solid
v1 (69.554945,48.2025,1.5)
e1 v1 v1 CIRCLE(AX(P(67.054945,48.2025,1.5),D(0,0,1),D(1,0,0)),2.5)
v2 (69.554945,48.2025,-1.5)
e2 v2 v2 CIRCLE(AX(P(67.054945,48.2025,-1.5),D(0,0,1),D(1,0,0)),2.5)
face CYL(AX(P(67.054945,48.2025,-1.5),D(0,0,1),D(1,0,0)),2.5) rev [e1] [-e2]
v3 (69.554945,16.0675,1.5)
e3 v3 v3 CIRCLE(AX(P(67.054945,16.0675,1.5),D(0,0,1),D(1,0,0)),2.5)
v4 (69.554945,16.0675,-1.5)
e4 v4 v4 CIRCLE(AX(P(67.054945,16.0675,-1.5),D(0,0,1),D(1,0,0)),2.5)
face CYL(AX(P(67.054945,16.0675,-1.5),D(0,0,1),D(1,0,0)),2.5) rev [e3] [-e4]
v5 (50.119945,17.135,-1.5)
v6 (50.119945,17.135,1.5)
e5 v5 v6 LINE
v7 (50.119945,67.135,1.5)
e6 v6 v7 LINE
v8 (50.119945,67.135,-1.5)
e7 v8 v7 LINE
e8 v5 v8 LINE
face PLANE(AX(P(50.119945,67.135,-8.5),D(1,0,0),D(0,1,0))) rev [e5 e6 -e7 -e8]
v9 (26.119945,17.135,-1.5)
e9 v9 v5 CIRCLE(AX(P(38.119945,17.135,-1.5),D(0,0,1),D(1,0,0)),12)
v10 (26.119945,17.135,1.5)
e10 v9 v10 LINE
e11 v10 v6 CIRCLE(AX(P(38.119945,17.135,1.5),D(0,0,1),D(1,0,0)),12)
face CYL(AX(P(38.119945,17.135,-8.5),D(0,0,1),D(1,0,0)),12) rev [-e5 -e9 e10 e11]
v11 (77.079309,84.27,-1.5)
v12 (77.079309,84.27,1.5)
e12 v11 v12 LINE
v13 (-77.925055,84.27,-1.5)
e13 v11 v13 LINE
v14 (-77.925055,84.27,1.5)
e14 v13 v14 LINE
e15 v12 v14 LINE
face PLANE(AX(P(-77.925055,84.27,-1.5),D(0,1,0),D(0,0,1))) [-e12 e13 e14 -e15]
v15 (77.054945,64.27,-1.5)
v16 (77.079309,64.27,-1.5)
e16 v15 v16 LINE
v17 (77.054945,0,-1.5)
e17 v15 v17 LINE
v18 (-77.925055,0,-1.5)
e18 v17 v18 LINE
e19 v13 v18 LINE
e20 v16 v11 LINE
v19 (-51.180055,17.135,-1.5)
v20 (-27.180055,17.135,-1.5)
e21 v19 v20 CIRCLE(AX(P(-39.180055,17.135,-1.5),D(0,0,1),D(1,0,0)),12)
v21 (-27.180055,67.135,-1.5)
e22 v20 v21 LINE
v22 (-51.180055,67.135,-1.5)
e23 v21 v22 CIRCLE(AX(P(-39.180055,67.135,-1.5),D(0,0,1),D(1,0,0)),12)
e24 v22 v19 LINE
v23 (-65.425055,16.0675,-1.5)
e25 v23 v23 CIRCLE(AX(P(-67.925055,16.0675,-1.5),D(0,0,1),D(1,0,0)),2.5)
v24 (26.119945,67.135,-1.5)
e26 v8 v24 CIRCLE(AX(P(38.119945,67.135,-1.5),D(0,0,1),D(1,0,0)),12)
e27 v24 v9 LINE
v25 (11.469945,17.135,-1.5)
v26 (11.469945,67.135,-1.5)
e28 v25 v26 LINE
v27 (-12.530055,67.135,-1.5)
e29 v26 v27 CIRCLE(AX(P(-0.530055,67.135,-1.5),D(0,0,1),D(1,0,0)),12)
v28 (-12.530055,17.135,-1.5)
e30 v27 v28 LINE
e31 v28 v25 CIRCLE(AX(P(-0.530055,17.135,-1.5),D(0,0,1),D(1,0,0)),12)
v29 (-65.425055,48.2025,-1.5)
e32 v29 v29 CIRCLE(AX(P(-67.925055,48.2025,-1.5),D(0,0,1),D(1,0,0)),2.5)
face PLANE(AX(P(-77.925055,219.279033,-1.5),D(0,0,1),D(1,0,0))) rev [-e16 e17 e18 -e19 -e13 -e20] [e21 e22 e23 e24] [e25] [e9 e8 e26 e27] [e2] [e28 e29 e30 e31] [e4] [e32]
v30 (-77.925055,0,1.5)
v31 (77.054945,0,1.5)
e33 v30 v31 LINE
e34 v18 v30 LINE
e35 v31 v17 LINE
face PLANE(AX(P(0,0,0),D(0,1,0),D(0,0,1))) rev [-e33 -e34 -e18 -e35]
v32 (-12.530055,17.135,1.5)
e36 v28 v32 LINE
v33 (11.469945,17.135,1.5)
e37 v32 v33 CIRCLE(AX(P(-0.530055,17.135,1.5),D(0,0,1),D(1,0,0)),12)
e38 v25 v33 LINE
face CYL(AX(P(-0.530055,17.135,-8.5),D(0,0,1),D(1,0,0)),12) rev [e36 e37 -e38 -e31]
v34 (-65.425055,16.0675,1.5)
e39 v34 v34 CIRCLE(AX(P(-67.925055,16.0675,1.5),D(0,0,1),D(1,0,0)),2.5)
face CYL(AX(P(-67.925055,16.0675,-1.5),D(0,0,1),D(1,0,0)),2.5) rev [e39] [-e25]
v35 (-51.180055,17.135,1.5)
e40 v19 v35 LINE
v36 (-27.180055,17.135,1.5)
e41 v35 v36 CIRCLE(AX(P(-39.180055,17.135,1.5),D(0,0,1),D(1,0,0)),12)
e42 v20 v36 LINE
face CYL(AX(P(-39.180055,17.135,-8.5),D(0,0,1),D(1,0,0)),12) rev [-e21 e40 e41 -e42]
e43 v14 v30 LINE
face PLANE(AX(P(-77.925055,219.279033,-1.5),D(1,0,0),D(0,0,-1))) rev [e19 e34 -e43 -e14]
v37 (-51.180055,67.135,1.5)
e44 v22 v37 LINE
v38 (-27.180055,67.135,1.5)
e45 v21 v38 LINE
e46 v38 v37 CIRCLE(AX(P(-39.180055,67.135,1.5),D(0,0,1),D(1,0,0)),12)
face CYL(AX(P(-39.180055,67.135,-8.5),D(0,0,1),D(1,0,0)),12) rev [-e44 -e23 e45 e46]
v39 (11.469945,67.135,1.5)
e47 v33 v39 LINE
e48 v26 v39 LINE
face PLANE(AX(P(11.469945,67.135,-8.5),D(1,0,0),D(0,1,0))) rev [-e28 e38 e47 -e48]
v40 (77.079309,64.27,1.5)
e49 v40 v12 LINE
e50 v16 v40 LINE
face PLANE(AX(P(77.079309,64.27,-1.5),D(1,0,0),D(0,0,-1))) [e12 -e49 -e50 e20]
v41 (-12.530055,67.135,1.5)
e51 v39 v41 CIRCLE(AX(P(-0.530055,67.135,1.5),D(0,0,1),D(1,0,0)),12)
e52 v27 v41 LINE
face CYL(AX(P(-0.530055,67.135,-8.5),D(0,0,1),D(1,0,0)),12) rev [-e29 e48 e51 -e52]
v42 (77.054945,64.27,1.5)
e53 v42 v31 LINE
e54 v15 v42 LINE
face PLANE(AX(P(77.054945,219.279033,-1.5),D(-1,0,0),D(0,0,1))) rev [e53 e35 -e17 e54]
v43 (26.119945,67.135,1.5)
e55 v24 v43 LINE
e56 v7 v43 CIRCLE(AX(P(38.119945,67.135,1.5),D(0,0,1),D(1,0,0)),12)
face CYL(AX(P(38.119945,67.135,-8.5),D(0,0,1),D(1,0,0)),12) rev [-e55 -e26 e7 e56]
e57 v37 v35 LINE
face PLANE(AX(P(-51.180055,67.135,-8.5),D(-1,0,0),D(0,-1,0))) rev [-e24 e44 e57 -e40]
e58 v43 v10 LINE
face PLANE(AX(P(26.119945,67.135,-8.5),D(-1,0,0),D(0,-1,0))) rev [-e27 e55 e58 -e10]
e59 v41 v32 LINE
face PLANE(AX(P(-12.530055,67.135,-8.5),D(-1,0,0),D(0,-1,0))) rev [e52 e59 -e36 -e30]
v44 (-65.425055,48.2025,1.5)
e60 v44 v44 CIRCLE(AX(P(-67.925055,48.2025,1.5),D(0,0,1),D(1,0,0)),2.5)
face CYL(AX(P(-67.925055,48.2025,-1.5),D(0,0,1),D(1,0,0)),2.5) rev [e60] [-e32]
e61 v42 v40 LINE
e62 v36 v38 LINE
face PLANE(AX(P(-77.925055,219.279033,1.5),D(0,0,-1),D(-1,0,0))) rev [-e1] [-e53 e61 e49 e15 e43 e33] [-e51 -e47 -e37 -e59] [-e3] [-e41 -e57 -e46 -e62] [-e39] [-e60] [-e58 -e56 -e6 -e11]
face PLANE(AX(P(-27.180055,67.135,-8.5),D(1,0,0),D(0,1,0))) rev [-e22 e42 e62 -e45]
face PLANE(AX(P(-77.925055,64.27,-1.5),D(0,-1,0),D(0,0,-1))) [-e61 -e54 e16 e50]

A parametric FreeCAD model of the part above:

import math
import FreeCAD as App
import Part
import Sketcher
Q = App.Units.Quantity

doc = App.newDocument("Part")
params = doc.addObject("Spreadsheet::Sheet", "Params")
for row, (alias, value) in enumerate([
    ("sketch1_height", "3 mm"),
    ("sketch1_width", "154.98 mm"),
    ("pad1_length", "64.27 mm"),
    ("sketch2_diameter", "5 mm"),
    ("sketch3_radius", "2.5 mm"),
    ("sketch3_height", "30 mm"),
    ("sketch4_height", "20 mm"),
    ("pad2_length", "3 mm"),
    ("sketch5_radius", "12 mm"),
    ("sketch5_height", "50 mm"),
    ("pocket3_length", "10 mm"),
], start=1):
    params.set(f"A{row}", alias)
    params.set(f"B{row}", "=" + value)
    params.setAlias(f"B{row}", alias)

body = doc.addObject("PartDesign::Body", "Body")

# Sketch on XZ plane
sketch1 = body.newObject("Sketcher::SketchObject", "Sketch")
sketch1.AttachmentSupport = (doc.getObject("XZ_Plane"), [""])
sketch1.MapMode = "FlatFace"
sketch1.addGeometry([
    Part.LineSegment(App.Vector(-77.925055, -1.5, 0), App.Vector(-77.925055, 1.5, 0)),
    Part.LineSegment(App.Vector(-77.925055, 1.5, 0), App.Vector(77.054945, 1.5, 0)),
    Part.LineSegment(App.Vector(77.054945, 1.5, 0), App.Vector(77.054945, -1.5, 0)),
    Part.LineSegment(App.Vector(77.054945, -1.5, 0), App.Vector(-77.925055, -1.5, 0)),
], False)
sketch1.addConstraint([
    Sketcher.Constraint("Coincident", 0, 2, 1, 1),
    Sketcher.Constraint("Coincident", 1, 2, 2, 1),
    Sketcher.Constraint("Coincident", 2, 2, 3, 1),
    Sketcher.Constraint("Coincident", 3, 2, 0, 1),
    Sketcher.Constraint("Vertical", 0),
    Sketcher.Constraint("Horizontal", 1),
    Sketcher.Constraint("Vertical", 2),
    Sketcher.Constraint("Horizontal", 3),
    Sketcher.Constraint("DistanceY", 0, 1, 0, 2, Q("3 mm")),
    Sketcher.Constraint("DistanceX", 1, 1, 1, 2, Q("154.98 mm")),
    Sketcher.Constraint("DistanceY", -1, 1, 0, 2, Q("1.5 mm")),
    Sketcher.Constraint("DistanceX", 0, 2, -1, 1, Q("77.925055 mm")),
])
sketch1.setExpression("Constraints[8]", "Params.sketch1_height")
sketch1.setExpression("Constraints[9]", "Params.sketch1_width")
pad1 = body.newObject("PartDesign::Pad", "Pad")
pad1.Profile = sketch1
pad1.setExpression("Length", "Params.pad1_length")
pad1.Reversed = True

# Sketch on XY plane
sketch2 = body.newObject("Sketcher::SketchObject", "Sketch001")
sketch2.AttachmentSupport = (doc.getObject("XY_Plane"), [""])
sketch2.MapMode = "FlatFace"
sketch2.AttachmentOffset = App.Placement(App.Vector(0, 0, 1.5), App.Rotation())
sketch2.addGeometry([
    Part.Circle(App.Vector(-67.925055, 16.0675, 0), App.Vector(0, 0, 1), 2.5),
    Part.Circle(App.Vector(-67.925055, 48.2025, 0), App.Vector(0, 0, 1), 2.5),
    Part.Circle(App.Vector(67.054945, 48.2025, 0), App.Vector(0, 0, 1), 2.5),
    Part.Circle(App.Vector(67.054945, 16.0675, 0), App.Vector(0, 0, 1), 2.5),
], False)
sketch2.addConstraint([
    Sketcher.Constraint("Equal", 0, 1),
    Sketcher.Constraint("Equal", 1, 2),
    Sketcher.Constraint("Equal", 2, 3),
    Sketcher.Constraint("Horizontal", 1, 3, 2, 3),
    Sketcher.Constraint("Horizontal", 0, 3, 3, 3),
    Sketcher.Constraint("Vertical", 0, 3, 1, 3),
    Sketcher.Constraint("Vertical", 2, 3, 3, 3),
    Sketcher.Constraint("Diameter", 0, Q("5 mm")),
    Sketcher.Constraint("DistanceX", 1, 3, 2, 3, Q("134.98 mm")),
    Sketcher.Constraint("DistanceY", 0, 3, 1, 3, Q("32.135 mm")),
    Sketcher.Constraint("DistanceY", -1, 1, 0, 3, Q("16.0675 mm")),
    Sketcher.Constraint("DistanceX", 0, 3, -1, 1, Q("67.925055 mm")),
])
sketch2.setExpression("Constraints[7]", "Params.sketch2_diameter")
pocket1 = body.newObject("PartDesign::Pocket", "Pocket")
pocket1.Profile = sketch2
pocket1.Type = "ThroughAll"

# Sketch on XY plane
sketch3 = body.newObject("Sketcher::SketchObject", "Sketch002")
sketch3.AttachmentSupport = (doc.getObject("XY_Plane"), [""])
sketch3.MapMode = "FlatFace"
sketch3.AttachmentOffset = App.Placement(App.Vector(0, 0, 1.5), App.Rotation())
sketch3.addGeometry([
    Part.LineSegment(App.Vector(-41.680055, 47.135, 0), App.Vector(-41.680055, 17.135, 0)),  # 0
    Part.ArcOfCircle(Part.Circle(App.Vector(-39.180055, 17.135, 0), App.Vector(0, 0, 1), 2.5), math.radians(180), math.radians(360)),  # 1
    Part.LineSegment(App.Vector(-36.680055, 17.135, 0), App.Vector(-36.680055, 47.135, 0)),  # 2
    Part.ArcOfCircle(Part.Circle(App.Vector(-39.180055, 47.135, 0), App.Vector(0, 0, 1), 2.5), math.radians(0), math.radians(180)),  # 3
    Part.LineSegment(App.Vector(-2.935055, 47.135, 0), App.Vector(-2.935055, 17.135, 0)),  # 4
    Part.ArcOfCircle(Part.Circle(App.Vector(-0.435055, 17.135, 0), App.Vector(0, 0, 1), 2.5), math.radians(180), math.radians(360)),  # 5
    Part.LineSegment(App.Vector(2.064945, 17.135, 0), App.Vector(2.064945, 47.135, 0)),  # 6
    Part.ArcOfCircle(Part.Circle(App.Vector(-0.435055, 47.135, 0), App.Vector(0, 0, 1), 2.5), math.radians(0), math.radians(180)),  # 7
    Part.LineSegment(App.Vector(35.809945, 47.135, 0), App.Vector(35.809945, 17.135, 0)),  # 8
    Part.ArcOfCircle(Part.Circle(App.Vector(38.309945, 17.135, 0), App.Vector(0, 0, 1), 2.5), math.radians(180), math.radians(360)),  # 9
    Part.LineSegment(App.Vector(40.809945, 17.135, 0), App.Vector(40.809945, 47.135, 0)),  # 10
    Part.ArcOfCircle(Part.Circle(App.Vector(38.309945, 47.135, 0), App.Vector(0, 0, 1), 2.5), math.radians(0), math.radians(180)),  # 11
], False)
sketch3.addConstraint([
    Sketcher.Constraint("Tangent", 0, 2, 1, 1),
    Sketcher.Constraint("Tangent", 1, 2, 2, 1),
    Sketcher.Constraint("Tangent", 2, 2, 3, 1),
    Sketcher.Constraint("Tangent", 3, 2, 0, 1),
    Sketcher.Constraint("Tangent", 4, 2, 5, 1),
    Sketcher.Constraint("Tangent", 5, 2, 6, 1),
    Sketcher.Constraint("Tangent", 6, 2, 7, 1),
    Sketcher.Constraint("Tangent", 7, 2, 4, 1),
    Sketcher.Constraint("Tangent", 8, 2, 9, 1),
    Sketcher.Constraint("Tangent", 9, 2, 10, 1),
    Sketcher.Constraint("Tangent", 10, 2, 11, 1),
    Sketcher.Constraint("Tangent", 11, 2, 8, 1),
    Sketcher.Constraint("Vertical", 0),
    Sketcher.Constraint("Vertical", 2),
    Sketcher.Constraint("Vertical", 4),
    Sketcher.Constraint("Vertical", 6),
    Sketcher.Constraint("Vertical", 8),
    Sketcher.Constraint("Vertical", 10),
    Sketcher.Constraint("Equal", 3, 5),
    Sketcher.Constraint("Equal", 7, 9),
    Sketcher.Constraint("Horizontal", 1, 3, 5, 3),
    Sketcher.Constraint("Horizontal", 3, 3, 7, 3),
    Sketcher.Constraint("Horizontal", 5, 3, 9, 3),
    Sketcher.Constraint("Horizontal", 7, 3, 11, 3),
    Sketcher.Constraint("Radius", 1, Q("2.5 mm")),
    Sketcher.Constraint("DistanceY", 0, 2, 0, 1, Q("30 mm")),
    Sketcher.Constraint("DistanceX", 1, 3, 9, 3, Q("77.49 mm")),
    Sketcher.Constraint("DistanceY", -1, 1, 1, 3, Q("17.135 mm")),
    Sketcher.Constraint("DistanceX", 1, 3, 5, 3, Q("38.745 mm")),
    Sketcher.Constraint("DistanceX", 1, 3, -1, 1, Q("39.180055 mm")),
])
sketch3.setExpression("Constraints[24]", "Params.sketch3_radius")
sketch3.setExpression("Constraints[25]", "Params.sketch3_height")
pocket2 = body.newObject("PartDesign::Pocket", "Pocket001")
pocket2.Profile = sketch3
pocket2.Type = "ThroughAll"

# Sketch on XY plane
sketch4 = body.newObject("Sketcher::SketchObject", "Sketch003")
sketch4.AttachmentSupport = (doc.getObject("XY_Plane"), [""])
sketch4.MapMode = "FlatFace"
sketch4.AttachmentOffset = App.Placement(App.Vector(0, 0, 1.5), App.Rotation())
sketch4.addGeometry([
    Part.LineSegment(App.Vector(-77.925055, 84.27, 0), App.Vector(-77.925055, 64.27, 0)),
    Part.LineSegment(App.Vector(-77.925055, 64.27, 0), App.Vector(77.079309, 64.27, 0)),
    Part.LineSegment(App.Vector(77.079309, 64.27, 0), App.Vector(77.079309, 84.27, 0)),
    Part.LineSegment(App.Vector(77.079309, 84.27, 0), App.Vector(-77.925055, 84.27, 0)),
], False)
sketch4.addConstraint([
    Sketcher.Constraint("Coincident", 0, 2, 1, 1),
    Sketcher.Constraint("Coincident", 1, 2, 2, 1),
    Sketcher.Constraint("Coincident", 2, 2, 3, 1),
    Sketcher.Constraint("Coincident", 3, 2, 0, 1),
    Sketcher.Constraint("Vertical", 0),
    Sketcher.Constraint("Horizontal", 1),
    Sketcher.Constraint("Vertical", 2),
    Sketcher.Constraint("Horizontal", 3),
    Sketcher.Constraint("DistanceY", 0, 2, 0, 1, Q("20 mm")),
    Sketcher.Constraint("DistanceY", -1, 1, 0, 2, Q("64.27 mm")),
    Sketcher.Constraint("DistanceX", 1, 1, 1, 2, Q("155.004364 mm")),
    Sketcher.Constraint("DistanceX", -1, 1, 1, 2, Q("77.079309 mm")),
])
sketch4.setExpression("Constraints[8]", "Params.sketch4_height")
pad2 = body.newObject("PartDesign::Pad", "Pad001")
pad2.Profile = sketch4
pad2.setExpression("Length", "Params.pad2_length")
pad2.Reversed = True

# Sketch on XY plane
sketch5 = body.newObject("Sketcher::SketchObject", "Sketch004")
sketch5.AttachmentSupport = (doc.getObject("XY_Plane"), [""])
sketch5.MapMode = "FlatFace"
sketch5.AttachmentOffset = App.Placement(App.Vector(0, 0, 1.5), App.Rotation())
sketch5.addGeometry([
    Part.LineSegment(App.Vector(-27.180055, 17.135, 0), App.Vector(-27.180055, 67.135, 0)),  # 0
    Part.ArcOfCircle(Part.Circle(App.Vector(-39.180055, 67.135, 0), App.Vector(0, 0, 1), 12), math.radians(0), math.radians(180)),  # 1
    Part.LineSegment(App.Vector(-51.180055, 67.135, 0), App.Vector(-51.180055, 17.135, 0)),  # 2
    Part.ArcOfCircle(Part.Circle(App.Vector(-39.180055, 17.135, 0), App.Vector(0, 0, 1), 12), math.radians(180), math.radians(360)),  # 3
    Part.LineSegment(App.Vector(-12.530055, 67.135, 0), App.Vector(-12.530055, 17.135, 0)),  # 4
    Part.ArcOfCircle(Part.Circle(App.Vector(-0.530055, 17.135, 0), App.Vector(0, 0, 1), 12), math.radians(180), math.radians(360)),  # 5
    Part.LineSegment(App.Vector(11.469945, 17.135, 0), App.Vector(11.469945, 67.135, 0)),  # 6
    Part.ArcOfCircle(Part.Circle(App.Vector(-0.530055, 67.135, 0), App.Vector(0, 0, 1), 12), math.radians(0), math.radians(180)),  # 7
    Part.LineSegment(App.Vector(26.119945, 67.135, 0), App.Vector(26.119945, 17.135, 0)),  # 8
    Part.ArcOfCircle(Part.Circle(App.Vector(38.119945, 17.135, 0), App.Vector(0, 0, 1), 12), math.radians(180), math.radians(360)),  # 9
    Part.LineSegment(App.Vector(50.119945, 17.135, 0), App.Vector(50.119945, 67.135, 0)),  # 10
    Part.ArcOfCircle(Part.Circle(App.Vector(38.119945, 67.135, 0), App.Vector(0, 0, 1), 12), math.radians(0), math.radians(180)),  # 11
], False)
sketch5.addConstraint([
    Sketcher.Constraint("Tangent", 0, 2, 1, 1),
    Sketcher.Constraint("Tangent", 1, 2, 2, 1),
    Sketcher.Constraint("Tangent", 2, 2, 3, 1),
    Sketcher.Constraint("Tangent", 3, 2, 0, 1),
    Sketcher.Constraint("Tangent", 4, 2, 5, 1),
    Sketcher.Constraint("Tangent", 5, 2, 6, 1),
    Sketcher.Constraint("Tangent", 6, 2, 7, 1),
    Sketcher.Constraint("Tangent", 7, 2, 4, 1),
    Sketcher.Constraint("Tangent", 8, 2, 9, 1),
    Sketcher.Constraint("Tangent", 9, 2, 10, 1),
    Sketcher.Constraint("Tangent", 10, 2, 11, 1),
    Sketcher.Constraint("Tangent", 11, 2, 8, 1),
    Sketcher.Constraint("Vertical", 0),
    Sketcher.Constraint("Vertical", 2),
    Sketcher.Constraint("Vertical", 4),
    Sketcher.Constraint("Vertical", 6),
    Sketcher.Constraint("Vertical", 8),
    Sketcher.Constraint("Vertical", 10),
    Sketcher.Constraint("Equal", 3, 5),
    Sketcher.Constraint("Equal", 7, 9),
    Sketcher.Constraint("Horizontal", 3, 3, 5, 3),
    Sketcher.Constraint("Horizontal", 1, 3, 7, 3),
    Sketcher.Constraint("Horizontal", 5, 3, 9, 3),
    Sketcher.Constraint("Horizontal", 7, 3, 11, 3),
    Sketcher.Constraint("Radius", 1, Q("12 mm")),
    Sketcher.Constraint("DistanceY", 0, 1, 0, 2, Q("50 mm")),
    Sketcher.Constraint("DistanceX", 3, 3, 9, 3, Q("77.3 mm")),
    Sketcher.Constraint("DistanceX", 3, 3, 5, 3, Q("38.65 mm")),
    Sketcher.Constraint("DistanceY", -1, 1, 1, 3, Q("67.135 mm")),
    Sketcher.Constraint("DistanceX", 1, 3, -1, 1, Q("39.180055 mm")),
])
sketch5.setExpression("Constraints[24]", "Params.sketch5_radius")
sketch5.setExpression("Constraints[25]", "Params.sketch5_height")
pocket3 = body.newObject("PartDesign::Pocket", "Pocket002")
pocket3.Profile = sketch5
pocket3.setExpression("Length", "Params.pocket3_length")

doc.recompute()
